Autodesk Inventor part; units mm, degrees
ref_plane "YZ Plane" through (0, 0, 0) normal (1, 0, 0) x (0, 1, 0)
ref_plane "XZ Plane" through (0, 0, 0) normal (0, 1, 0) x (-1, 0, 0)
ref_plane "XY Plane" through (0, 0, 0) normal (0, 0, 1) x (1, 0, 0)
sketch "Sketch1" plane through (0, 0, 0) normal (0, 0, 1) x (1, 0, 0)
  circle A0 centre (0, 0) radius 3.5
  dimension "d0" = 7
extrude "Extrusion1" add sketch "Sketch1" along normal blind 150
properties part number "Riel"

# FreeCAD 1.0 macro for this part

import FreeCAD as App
import Part
import Sketcher
Q = App.Units.Quantity

doc = App.newDocument("Part")
body = doc.addObject("PartDesign::Body", "Body")

# Sketch on XY plane
sketch1 = body.newObject("Sketcher::SketchObject", "Sketch")
sketch1.AttachmentSupport = (doc.getObject("XY_Plane"), [""])
sketch1.MapMode = "FlatFace"
sketch1.addGeometry(Part.Circle(App.Vector(0, 0, 0), App.Vector(0, 0, 1), 3.5), False)
sketch1.addConstraint([
    Sketcher.Constraint("Coincident", 0, 3, -1, 1),
    Sketcher.Constraint("Diameter", 0, Q("7 mm")),
])
pad1 = body.newObject("PartDesign::Pad", "Pad")
pad1.Profile = sketch1
pad1.Length = 150

doc.recompute()
